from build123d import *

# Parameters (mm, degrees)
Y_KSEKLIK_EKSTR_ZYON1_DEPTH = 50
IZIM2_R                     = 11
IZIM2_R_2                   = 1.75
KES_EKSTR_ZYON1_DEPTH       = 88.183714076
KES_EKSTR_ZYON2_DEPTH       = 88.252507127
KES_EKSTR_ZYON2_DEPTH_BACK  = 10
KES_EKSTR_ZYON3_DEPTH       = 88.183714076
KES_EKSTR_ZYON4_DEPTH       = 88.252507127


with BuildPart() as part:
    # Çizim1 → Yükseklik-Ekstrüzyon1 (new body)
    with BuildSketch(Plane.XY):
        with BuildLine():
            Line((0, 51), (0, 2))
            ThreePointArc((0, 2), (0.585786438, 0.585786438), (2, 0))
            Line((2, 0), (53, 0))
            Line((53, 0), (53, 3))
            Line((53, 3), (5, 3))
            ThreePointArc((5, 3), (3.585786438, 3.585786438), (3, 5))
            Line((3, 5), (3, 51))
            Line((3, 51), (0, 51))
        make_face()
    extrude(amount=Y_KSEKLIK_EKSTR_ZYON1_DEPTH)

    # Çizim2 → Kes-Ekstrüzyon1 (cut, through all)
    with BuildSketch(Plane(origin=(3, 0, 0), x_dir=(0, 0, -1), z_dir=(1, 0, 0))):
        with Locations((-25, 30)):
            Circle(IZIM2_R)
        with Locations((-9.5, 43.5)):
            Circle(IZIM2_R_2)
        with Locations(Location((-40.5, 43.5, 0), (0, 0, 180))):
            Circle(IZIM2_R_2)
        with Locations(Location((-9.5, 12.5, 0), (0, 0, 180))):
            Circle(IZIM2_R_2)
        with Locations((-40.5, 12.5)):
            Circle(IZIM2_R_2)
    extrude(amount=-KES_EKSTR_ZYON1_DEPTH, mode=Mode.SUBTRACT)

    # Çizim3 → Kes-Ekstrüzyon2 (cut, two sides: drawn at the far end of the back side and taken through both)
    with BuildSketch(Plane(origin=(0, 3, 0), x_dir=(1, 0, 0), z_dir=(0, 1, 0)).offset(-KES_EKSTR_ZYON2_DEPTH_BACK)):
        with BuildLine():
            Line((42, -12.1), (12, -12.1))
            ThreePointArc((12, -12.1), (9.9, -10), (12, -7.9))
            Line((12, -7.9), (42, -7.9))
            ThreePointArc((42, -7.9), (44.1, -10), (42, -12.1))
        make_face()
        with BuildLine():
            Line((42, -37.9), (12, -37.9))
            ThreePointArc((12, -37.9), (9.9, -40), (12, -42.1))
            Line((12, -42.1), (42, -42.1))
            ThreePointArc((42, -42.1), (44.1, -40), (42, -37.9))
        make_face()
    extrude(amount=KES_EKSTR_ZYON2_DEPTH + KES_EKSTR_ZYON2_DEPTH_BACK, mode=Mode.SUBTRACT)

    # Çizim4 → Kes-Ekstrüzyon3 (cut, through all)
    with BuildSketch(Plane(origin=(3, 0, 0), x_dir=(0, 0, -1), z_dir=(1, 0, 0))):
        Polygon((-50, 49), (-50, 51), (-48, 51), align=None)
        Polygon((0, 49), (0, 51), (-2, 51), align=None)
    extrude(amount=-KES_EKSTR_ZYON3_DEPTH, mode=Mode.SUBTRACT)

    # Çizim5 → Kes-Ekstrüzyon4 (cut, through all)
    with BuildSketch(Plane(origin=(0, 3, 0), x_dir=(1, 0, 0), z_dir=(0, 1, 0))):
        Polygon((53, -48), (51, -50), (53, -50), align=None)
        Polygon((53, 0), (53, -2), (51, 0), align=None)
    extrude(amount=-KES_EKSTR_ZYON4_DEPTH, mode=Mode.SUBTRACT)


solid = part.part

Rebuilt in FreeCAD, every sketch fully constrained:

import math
import FreeCAD as App
import Part
import Sketcher

V = App.Vector


def add_polygon(sketch, points):
    """Adds a closed chain of lines whose ends are joined by coincident constraints."""
    first, n = sketch.GeometryCount, len(points)
    for a, b in zip(points, points[1:] + points[:1]):
        sketch.addGeometry(Part.LineSegment(App.Vector(*a, 0), App.Vector(*b, 0)), False)
    for i in range(n):
        sketch.addConstraint(Sketcher.Constraint("Coincident", first + i, 2, first + (i + 1) % n, 1))

doc = App.newDocument("Part")
body = doc.addObject("PartDesign::Body", "Body")

# Sketch on XY plane
sketch1 = body.newObject("Sketcher::SketchObject", "Sketch")
sketch1.AttachmentSupport = (doc.getObject("XY_Plane"), [""])
sketch1.MapMode = "FlatFace"
sketch1.addGeometry([
    Part.LineSegment(V(0, 51, 0), V(0, 2, 0)),  # 0
    Part.ArcOfCircle(Part.Circle(V(2, 2, 0), V(0, 0, 1), 2), math.radians(-180), math.radians(-90)),  # 1
    Part.LineSegment(V(2, 0, 0), V(53, 0, 0)),  # 2
    Part.LineSegment(V(53, 0, 0), V(53, 3, 0)),  # 3
    Part.LineSegment(V(53, 3, 0), V(5, 3, 0)),  # 4
    Part.ArcOfCircle(Part.Circle(V(5, 5, 0), V(0, 0, 1), 2), math.radians(-180), math.radians(-90)),  # 5
    Part.LineSegment(V(3, 5, 0), V(3, 51, 0)),  # 6
    Part.LineSegment(V(3, 51, 0), V(0, 51, 0)),  # 7
], False)
sketch1.addConstraint([
    Sketcher.Constraint("Tangent", 0, 2, 1, 1),
    Sketcher.Constraint("Tangent", 1, 2, 2, 1),
    Sketcher.Constraint("Coincident", 2, 2, 3, 1),
    Sketcher.Constraint("Coincident", 3, 2, 4, 1),
    Sketcher.Constraint("Tangent", 4, 2, 5, 2),
    Sketcher.Constraint("Tangent", 5, 1, 6, 1),
    Sketcher.Constraint("Coincident", 6, 2, 7, 1),
    Sketcher.Constraint("Coincident", 7, 2, 0, 1),
    Sketcher.Constraint("Vertical", 0),
    Sketcher.Constraint("Horizontal", 2),
    Sketcher.Constraint("Vertical", 3),
    Sketcher.Constraint("Horizontal", 4),
    Sketcher.Constraint("Vertical", 6),
    Sketcher.Constraint("Horizontal", 7),
    Sketcher.Constraint("Equal", 1, 5),
    Sketcher.Constraint("PointOnObject", 0, 2, -2),
    Sketcher.Constraint("PointOnObject", 1, 2, -1),
    Sketcher.Constraint("Equal", 7, 3),
    Sketcher.Constraint("Radius", 1, 2.0),
    Sketcher.Constraint("DistanceX", 2, 1, 2, 2, 51.0),
    Sketcher.Constraint("DistanceX", 4, 2, 4, 1, 48.0),
    Sketcher.Constraint("DistanceY", 0, 2, 0, 1, 49.0),
])
pad1 = body.newObject("PartDesign::Pad", "Pad")
pad1.Profile = sketch1
pad1.Length = 50

# Sketch on YZ plane
sketch2 = body.newObject("Sketcher::SketchObject", "Sketch001")
sketch2.AttachmentSupport = (doc.getObject("YZ_Plane"), [""])
sketch2.MapMode = "FlatFace"
sketch2.AttachmentOffset = App.Placement(V(0, 0, 3), App.Rotation())
sketch2.addGeometry([
    Part.Circle(V(30, 25, 0), V(0, 0, 1), 11),  # 0
    Part.Circle(V(43.5, 9.5, 0), V(0, 0, 1), 1.8),  # 1
    Part.Circle(V(43.5, 40.5, 0), V(0, 0, 1), 1.8),  # 2
    Part.Circle(V(12.5, 9.5, 0), V(0, 0, 1), 1.8),  # 3
    Part.Circle(V(12.5, 40.5, 0), V(0, 0, 1), 1.8),  # 4
], False)
sketch2.addConstraint([
    Sketcher.Constraint("Equal", 1, 2),
    Sketcher.Constraint("Equal", 2, 3),
    Sketcher.Constraint("Equal", 3, 4),
    Sketcher.Constraint("Horizontal", 1, 3, 3, 3),
    Sketcher.Constraint("Horizontal", 2, 3, 4, 3),
    Sketcher.Constraint("Vertical", 1, 3, 2, 3),
    Sketcher.Constraint("Vertical", 3, 3, 4, 3),
    Sketcher.Constraint("Diameter", 0, 22.0),
    Sketcher.Constraint("Diameter", 1, 3.5),
    Sketcher.Constraint("DistanceX", -1, 1, 0, 3, 30.0),
    Sketcher.Constraint("DistanceY", -1, 1, 0, 3, 25.0),
    Sketcher.Constraint("DistanceY", 1, 3, 2, 3, 31.0),
    Sketcher.Constraint("DistanceX", 3, 3, 1, 3, 31.0),
    Sketcher.Constraint("DistanceX", -1, 1, 1, 3, 43.5),
    Sketcher.Constraint("DistanceY", -1, 1, 1, 3, 9.5),
])
pocket1 = body.newObject("PartDesign::Pocket", "Pocket")
pocket1.Profile = sketch2
pocket1.Type = "ThroughAll"

# Sketch on XZ plane
sketch3 = body.newObject("Sketcher::SketchObject", "Sketch002")
sketch3.AttachmentSupport = (doc.getObject("XZ_Plane"), [""])
sketch3.MapMode = "FlatFace"
sketch3.AttachmentOffset = App.Placement(V(0, 0, -3), App.Rotation())
sketch3.addGeometry([
    Part.LineSegment(V(12, 12.1, 0), V(42, 12.1, 0)),  # 0
    Part.ArcOfCircle(Part.Circle(V(42, 10, 0), V(0, 0, 1), 2.1), math.radians(-90), math.radians(90)),  # 1
    Part.LineSegment(V(42, 7.9, 0), V(12, 7.9, 0)),  # 2
    Part.ArcOfCircle(Part.Circle(V(12, 10, 0), V(0, 0, 1), 2.1), math.radians(90), math.radians(270)),  # 3
    Part.LineSegment(V(42, 37.9, 0), V(12, 37.9, 0)),  # 4
    Part.ArcOfCircle(Part.Circle(V(12, 40, 0), V(0, 0, 1), 2.1), math.radians(90), math.radians(270)),  # 5
    Part.LineSegment(V(12, 42.1, 0), V(42, 42.1, 0)),  # 6
    Part.ArcOfCircle(Part.Circle(V(42, 40, 0), V(0, 0, 1), 2.1), math.radians(-90), math.radians(90)),  # 7
], False)
sketch3.addConstraint([
    Sketcher.Constraint("Tangent", 0, 2, 1, 2),
    Sketcher.Constraint("Tangent", 1, 1, 2, 1),
    Sketcher.Constraint("Tangent", 2, 2, 3, 2),
    Sketcher.Constraint("Tangent", 3, 1, 0, 1),
    Sketcher.Constraint("Tangent", 4, 2, 5, 2),
    Sketcher.Constraint("Tangent", 5, 1, 6, 1),
    Sketcher.Constraint("Tangent", 6, 2, 7, 2),
    Sketcher.Constraint("Tangent", 7, 1, 4, 1),
    Sketcher.Constraint("Horizontal", 0),
    Sketcher.Constraint("Horizontal", 2),
    Sketcher.Constraint("Horizontal", 4),
    Sketcher.Constraint("Horizontal", 6),
    Sketcher.Constraint("Equal", 3, 5),
    Sketcher.Constraint("Vertical", 3, 3, 5, 3),
    Sketcher.Constraint("Vertical", 1, 3, 7, 3),
    Sketcher.Constraint("Radius", 1, 2.1),
    Sketcher.Constraint("DistanceX", 0, 1, 0, 2, 30.0),
    Sketcher.Constraint("DistanceX", -1, 1, 1, 3, 42.0),
    Sketcher.Constraint("DistanceY", -1, 1, 1, 3, 10.0),
    Sketcher.Constraint("DistanceY", -1, 1, 5, 3, 40.0),
])
pocket2 = body.newObject("PartDesign::Pocket", "Pocket001")
pocket2.Profile = sketch3
pocket2.Type = "ThroughAll"
pocket2.Midplane = True

# Sketch on YZ plane
sketch4 = body.newObject("Sketcher::SketchObject", "Sketch003")
sketch4.AttachmentSupport = (doc.getObject("YZ_Plane"), [""])
sketch4.MapMode = "FlatFace"
sketch4.AttachmentOffset = App.Placement(V(0, 0, 3), App.Rotation())
add_polygon(sketch4, [(51, 50), (49, 50), (51, 48)])  # lines 0-2
add_polygon(sketch4, [(49, 0), (51, 0), (51, 2)])  # lines 3-5
sketch4.addConstraint([
    Sketcher.Constraint("Horizontal", 0),
    Sketcher.Constraint("Vertical", 2),
    Sketcher.Constraint("Horizontal", 3),
    Sketcher.Constraint("Vertical", 4),
    Sketcher.Constraint("PointOnObject", 3, 2, -1),
    Sketcher.Constraint("Perpendicular", 1, 5),
    Sketcher.Constraint("Vertical", 2, 2, 3, 2),
    Sketcher.Constraint("Vertical", 0, 2, 5, 2),
    Sketcher.Constraint("Equal", 3, 2),
    Sketcher.Constraint("DistanceX", 0, 2, 0, 1, 2.0),
    Sketcher.Constraint("DistanceX", -1, 1, 0, 2, 49.0),
    Sketcher.Constraint("DistanceY", -1, 1, 0, 2, 50.0),
])
pocket3 = body.newObject("PartDesign::Pocket", "Pocket002")
pocket3.Profile = sketch4
pocket3.Type = "ThroughAll"

# Sketch on XZ plane
sketch5 = body.newObject("Sketcher::SketchObject", "Sketch004")
sketch5.AttachmentSupport = (doc.getObject("XZ_Plane"), [""])
sketch5.MapMode = "FlatFace"
sketch5.AttachmentOffset = App.Placement(V(0, 0, -3), App.Rotation())
add_polygon(sketch5, [(53, 48), (51, 50), (53, 50)])  # lines 0-2
add_polygon(sketch5, [(53, 2), (53, 0), (51, 0)])  # lines 3-5
sketch5.addConstraint([
    Sketcher.Constraint("Horizontal", 1),
    Sketcher.Constraint("Vertical", 2),
    Sketcher.Constraint("Vertical", 3),
    Sketcher.Constraint("Horizontal", 4),
    Sketcher.Constraint("PointOnObject", 3, 2, -1),
    Sketcher.Constraint("Perpendicular", 0, 5),
    Sketcher.Constraint("Vertical", 2, 2, 3, 2),
    Sketcher.Constraint("Vertical", 0, 2, 4, 2),
    Sketcher.Constraint("Equal", 4, 2),
    Sketcher.Constraint("DistanceX", 1, 1, 1, 2, 2.0),
    Sketcher.Constraint("DistanceX", -1, 1, 0, 2, 51.0),
    Sketcher.Constraint("DistanceY", -1, 1, 0, 2, 50.0),
])
pocket4 = body.newObject("PartDesign::Pocket", "Pocket003")
pocket4.Profile = sketch5
pocket4.Type = "ThroughAll"
pocket4.Reversed = True

doc.recompute()
